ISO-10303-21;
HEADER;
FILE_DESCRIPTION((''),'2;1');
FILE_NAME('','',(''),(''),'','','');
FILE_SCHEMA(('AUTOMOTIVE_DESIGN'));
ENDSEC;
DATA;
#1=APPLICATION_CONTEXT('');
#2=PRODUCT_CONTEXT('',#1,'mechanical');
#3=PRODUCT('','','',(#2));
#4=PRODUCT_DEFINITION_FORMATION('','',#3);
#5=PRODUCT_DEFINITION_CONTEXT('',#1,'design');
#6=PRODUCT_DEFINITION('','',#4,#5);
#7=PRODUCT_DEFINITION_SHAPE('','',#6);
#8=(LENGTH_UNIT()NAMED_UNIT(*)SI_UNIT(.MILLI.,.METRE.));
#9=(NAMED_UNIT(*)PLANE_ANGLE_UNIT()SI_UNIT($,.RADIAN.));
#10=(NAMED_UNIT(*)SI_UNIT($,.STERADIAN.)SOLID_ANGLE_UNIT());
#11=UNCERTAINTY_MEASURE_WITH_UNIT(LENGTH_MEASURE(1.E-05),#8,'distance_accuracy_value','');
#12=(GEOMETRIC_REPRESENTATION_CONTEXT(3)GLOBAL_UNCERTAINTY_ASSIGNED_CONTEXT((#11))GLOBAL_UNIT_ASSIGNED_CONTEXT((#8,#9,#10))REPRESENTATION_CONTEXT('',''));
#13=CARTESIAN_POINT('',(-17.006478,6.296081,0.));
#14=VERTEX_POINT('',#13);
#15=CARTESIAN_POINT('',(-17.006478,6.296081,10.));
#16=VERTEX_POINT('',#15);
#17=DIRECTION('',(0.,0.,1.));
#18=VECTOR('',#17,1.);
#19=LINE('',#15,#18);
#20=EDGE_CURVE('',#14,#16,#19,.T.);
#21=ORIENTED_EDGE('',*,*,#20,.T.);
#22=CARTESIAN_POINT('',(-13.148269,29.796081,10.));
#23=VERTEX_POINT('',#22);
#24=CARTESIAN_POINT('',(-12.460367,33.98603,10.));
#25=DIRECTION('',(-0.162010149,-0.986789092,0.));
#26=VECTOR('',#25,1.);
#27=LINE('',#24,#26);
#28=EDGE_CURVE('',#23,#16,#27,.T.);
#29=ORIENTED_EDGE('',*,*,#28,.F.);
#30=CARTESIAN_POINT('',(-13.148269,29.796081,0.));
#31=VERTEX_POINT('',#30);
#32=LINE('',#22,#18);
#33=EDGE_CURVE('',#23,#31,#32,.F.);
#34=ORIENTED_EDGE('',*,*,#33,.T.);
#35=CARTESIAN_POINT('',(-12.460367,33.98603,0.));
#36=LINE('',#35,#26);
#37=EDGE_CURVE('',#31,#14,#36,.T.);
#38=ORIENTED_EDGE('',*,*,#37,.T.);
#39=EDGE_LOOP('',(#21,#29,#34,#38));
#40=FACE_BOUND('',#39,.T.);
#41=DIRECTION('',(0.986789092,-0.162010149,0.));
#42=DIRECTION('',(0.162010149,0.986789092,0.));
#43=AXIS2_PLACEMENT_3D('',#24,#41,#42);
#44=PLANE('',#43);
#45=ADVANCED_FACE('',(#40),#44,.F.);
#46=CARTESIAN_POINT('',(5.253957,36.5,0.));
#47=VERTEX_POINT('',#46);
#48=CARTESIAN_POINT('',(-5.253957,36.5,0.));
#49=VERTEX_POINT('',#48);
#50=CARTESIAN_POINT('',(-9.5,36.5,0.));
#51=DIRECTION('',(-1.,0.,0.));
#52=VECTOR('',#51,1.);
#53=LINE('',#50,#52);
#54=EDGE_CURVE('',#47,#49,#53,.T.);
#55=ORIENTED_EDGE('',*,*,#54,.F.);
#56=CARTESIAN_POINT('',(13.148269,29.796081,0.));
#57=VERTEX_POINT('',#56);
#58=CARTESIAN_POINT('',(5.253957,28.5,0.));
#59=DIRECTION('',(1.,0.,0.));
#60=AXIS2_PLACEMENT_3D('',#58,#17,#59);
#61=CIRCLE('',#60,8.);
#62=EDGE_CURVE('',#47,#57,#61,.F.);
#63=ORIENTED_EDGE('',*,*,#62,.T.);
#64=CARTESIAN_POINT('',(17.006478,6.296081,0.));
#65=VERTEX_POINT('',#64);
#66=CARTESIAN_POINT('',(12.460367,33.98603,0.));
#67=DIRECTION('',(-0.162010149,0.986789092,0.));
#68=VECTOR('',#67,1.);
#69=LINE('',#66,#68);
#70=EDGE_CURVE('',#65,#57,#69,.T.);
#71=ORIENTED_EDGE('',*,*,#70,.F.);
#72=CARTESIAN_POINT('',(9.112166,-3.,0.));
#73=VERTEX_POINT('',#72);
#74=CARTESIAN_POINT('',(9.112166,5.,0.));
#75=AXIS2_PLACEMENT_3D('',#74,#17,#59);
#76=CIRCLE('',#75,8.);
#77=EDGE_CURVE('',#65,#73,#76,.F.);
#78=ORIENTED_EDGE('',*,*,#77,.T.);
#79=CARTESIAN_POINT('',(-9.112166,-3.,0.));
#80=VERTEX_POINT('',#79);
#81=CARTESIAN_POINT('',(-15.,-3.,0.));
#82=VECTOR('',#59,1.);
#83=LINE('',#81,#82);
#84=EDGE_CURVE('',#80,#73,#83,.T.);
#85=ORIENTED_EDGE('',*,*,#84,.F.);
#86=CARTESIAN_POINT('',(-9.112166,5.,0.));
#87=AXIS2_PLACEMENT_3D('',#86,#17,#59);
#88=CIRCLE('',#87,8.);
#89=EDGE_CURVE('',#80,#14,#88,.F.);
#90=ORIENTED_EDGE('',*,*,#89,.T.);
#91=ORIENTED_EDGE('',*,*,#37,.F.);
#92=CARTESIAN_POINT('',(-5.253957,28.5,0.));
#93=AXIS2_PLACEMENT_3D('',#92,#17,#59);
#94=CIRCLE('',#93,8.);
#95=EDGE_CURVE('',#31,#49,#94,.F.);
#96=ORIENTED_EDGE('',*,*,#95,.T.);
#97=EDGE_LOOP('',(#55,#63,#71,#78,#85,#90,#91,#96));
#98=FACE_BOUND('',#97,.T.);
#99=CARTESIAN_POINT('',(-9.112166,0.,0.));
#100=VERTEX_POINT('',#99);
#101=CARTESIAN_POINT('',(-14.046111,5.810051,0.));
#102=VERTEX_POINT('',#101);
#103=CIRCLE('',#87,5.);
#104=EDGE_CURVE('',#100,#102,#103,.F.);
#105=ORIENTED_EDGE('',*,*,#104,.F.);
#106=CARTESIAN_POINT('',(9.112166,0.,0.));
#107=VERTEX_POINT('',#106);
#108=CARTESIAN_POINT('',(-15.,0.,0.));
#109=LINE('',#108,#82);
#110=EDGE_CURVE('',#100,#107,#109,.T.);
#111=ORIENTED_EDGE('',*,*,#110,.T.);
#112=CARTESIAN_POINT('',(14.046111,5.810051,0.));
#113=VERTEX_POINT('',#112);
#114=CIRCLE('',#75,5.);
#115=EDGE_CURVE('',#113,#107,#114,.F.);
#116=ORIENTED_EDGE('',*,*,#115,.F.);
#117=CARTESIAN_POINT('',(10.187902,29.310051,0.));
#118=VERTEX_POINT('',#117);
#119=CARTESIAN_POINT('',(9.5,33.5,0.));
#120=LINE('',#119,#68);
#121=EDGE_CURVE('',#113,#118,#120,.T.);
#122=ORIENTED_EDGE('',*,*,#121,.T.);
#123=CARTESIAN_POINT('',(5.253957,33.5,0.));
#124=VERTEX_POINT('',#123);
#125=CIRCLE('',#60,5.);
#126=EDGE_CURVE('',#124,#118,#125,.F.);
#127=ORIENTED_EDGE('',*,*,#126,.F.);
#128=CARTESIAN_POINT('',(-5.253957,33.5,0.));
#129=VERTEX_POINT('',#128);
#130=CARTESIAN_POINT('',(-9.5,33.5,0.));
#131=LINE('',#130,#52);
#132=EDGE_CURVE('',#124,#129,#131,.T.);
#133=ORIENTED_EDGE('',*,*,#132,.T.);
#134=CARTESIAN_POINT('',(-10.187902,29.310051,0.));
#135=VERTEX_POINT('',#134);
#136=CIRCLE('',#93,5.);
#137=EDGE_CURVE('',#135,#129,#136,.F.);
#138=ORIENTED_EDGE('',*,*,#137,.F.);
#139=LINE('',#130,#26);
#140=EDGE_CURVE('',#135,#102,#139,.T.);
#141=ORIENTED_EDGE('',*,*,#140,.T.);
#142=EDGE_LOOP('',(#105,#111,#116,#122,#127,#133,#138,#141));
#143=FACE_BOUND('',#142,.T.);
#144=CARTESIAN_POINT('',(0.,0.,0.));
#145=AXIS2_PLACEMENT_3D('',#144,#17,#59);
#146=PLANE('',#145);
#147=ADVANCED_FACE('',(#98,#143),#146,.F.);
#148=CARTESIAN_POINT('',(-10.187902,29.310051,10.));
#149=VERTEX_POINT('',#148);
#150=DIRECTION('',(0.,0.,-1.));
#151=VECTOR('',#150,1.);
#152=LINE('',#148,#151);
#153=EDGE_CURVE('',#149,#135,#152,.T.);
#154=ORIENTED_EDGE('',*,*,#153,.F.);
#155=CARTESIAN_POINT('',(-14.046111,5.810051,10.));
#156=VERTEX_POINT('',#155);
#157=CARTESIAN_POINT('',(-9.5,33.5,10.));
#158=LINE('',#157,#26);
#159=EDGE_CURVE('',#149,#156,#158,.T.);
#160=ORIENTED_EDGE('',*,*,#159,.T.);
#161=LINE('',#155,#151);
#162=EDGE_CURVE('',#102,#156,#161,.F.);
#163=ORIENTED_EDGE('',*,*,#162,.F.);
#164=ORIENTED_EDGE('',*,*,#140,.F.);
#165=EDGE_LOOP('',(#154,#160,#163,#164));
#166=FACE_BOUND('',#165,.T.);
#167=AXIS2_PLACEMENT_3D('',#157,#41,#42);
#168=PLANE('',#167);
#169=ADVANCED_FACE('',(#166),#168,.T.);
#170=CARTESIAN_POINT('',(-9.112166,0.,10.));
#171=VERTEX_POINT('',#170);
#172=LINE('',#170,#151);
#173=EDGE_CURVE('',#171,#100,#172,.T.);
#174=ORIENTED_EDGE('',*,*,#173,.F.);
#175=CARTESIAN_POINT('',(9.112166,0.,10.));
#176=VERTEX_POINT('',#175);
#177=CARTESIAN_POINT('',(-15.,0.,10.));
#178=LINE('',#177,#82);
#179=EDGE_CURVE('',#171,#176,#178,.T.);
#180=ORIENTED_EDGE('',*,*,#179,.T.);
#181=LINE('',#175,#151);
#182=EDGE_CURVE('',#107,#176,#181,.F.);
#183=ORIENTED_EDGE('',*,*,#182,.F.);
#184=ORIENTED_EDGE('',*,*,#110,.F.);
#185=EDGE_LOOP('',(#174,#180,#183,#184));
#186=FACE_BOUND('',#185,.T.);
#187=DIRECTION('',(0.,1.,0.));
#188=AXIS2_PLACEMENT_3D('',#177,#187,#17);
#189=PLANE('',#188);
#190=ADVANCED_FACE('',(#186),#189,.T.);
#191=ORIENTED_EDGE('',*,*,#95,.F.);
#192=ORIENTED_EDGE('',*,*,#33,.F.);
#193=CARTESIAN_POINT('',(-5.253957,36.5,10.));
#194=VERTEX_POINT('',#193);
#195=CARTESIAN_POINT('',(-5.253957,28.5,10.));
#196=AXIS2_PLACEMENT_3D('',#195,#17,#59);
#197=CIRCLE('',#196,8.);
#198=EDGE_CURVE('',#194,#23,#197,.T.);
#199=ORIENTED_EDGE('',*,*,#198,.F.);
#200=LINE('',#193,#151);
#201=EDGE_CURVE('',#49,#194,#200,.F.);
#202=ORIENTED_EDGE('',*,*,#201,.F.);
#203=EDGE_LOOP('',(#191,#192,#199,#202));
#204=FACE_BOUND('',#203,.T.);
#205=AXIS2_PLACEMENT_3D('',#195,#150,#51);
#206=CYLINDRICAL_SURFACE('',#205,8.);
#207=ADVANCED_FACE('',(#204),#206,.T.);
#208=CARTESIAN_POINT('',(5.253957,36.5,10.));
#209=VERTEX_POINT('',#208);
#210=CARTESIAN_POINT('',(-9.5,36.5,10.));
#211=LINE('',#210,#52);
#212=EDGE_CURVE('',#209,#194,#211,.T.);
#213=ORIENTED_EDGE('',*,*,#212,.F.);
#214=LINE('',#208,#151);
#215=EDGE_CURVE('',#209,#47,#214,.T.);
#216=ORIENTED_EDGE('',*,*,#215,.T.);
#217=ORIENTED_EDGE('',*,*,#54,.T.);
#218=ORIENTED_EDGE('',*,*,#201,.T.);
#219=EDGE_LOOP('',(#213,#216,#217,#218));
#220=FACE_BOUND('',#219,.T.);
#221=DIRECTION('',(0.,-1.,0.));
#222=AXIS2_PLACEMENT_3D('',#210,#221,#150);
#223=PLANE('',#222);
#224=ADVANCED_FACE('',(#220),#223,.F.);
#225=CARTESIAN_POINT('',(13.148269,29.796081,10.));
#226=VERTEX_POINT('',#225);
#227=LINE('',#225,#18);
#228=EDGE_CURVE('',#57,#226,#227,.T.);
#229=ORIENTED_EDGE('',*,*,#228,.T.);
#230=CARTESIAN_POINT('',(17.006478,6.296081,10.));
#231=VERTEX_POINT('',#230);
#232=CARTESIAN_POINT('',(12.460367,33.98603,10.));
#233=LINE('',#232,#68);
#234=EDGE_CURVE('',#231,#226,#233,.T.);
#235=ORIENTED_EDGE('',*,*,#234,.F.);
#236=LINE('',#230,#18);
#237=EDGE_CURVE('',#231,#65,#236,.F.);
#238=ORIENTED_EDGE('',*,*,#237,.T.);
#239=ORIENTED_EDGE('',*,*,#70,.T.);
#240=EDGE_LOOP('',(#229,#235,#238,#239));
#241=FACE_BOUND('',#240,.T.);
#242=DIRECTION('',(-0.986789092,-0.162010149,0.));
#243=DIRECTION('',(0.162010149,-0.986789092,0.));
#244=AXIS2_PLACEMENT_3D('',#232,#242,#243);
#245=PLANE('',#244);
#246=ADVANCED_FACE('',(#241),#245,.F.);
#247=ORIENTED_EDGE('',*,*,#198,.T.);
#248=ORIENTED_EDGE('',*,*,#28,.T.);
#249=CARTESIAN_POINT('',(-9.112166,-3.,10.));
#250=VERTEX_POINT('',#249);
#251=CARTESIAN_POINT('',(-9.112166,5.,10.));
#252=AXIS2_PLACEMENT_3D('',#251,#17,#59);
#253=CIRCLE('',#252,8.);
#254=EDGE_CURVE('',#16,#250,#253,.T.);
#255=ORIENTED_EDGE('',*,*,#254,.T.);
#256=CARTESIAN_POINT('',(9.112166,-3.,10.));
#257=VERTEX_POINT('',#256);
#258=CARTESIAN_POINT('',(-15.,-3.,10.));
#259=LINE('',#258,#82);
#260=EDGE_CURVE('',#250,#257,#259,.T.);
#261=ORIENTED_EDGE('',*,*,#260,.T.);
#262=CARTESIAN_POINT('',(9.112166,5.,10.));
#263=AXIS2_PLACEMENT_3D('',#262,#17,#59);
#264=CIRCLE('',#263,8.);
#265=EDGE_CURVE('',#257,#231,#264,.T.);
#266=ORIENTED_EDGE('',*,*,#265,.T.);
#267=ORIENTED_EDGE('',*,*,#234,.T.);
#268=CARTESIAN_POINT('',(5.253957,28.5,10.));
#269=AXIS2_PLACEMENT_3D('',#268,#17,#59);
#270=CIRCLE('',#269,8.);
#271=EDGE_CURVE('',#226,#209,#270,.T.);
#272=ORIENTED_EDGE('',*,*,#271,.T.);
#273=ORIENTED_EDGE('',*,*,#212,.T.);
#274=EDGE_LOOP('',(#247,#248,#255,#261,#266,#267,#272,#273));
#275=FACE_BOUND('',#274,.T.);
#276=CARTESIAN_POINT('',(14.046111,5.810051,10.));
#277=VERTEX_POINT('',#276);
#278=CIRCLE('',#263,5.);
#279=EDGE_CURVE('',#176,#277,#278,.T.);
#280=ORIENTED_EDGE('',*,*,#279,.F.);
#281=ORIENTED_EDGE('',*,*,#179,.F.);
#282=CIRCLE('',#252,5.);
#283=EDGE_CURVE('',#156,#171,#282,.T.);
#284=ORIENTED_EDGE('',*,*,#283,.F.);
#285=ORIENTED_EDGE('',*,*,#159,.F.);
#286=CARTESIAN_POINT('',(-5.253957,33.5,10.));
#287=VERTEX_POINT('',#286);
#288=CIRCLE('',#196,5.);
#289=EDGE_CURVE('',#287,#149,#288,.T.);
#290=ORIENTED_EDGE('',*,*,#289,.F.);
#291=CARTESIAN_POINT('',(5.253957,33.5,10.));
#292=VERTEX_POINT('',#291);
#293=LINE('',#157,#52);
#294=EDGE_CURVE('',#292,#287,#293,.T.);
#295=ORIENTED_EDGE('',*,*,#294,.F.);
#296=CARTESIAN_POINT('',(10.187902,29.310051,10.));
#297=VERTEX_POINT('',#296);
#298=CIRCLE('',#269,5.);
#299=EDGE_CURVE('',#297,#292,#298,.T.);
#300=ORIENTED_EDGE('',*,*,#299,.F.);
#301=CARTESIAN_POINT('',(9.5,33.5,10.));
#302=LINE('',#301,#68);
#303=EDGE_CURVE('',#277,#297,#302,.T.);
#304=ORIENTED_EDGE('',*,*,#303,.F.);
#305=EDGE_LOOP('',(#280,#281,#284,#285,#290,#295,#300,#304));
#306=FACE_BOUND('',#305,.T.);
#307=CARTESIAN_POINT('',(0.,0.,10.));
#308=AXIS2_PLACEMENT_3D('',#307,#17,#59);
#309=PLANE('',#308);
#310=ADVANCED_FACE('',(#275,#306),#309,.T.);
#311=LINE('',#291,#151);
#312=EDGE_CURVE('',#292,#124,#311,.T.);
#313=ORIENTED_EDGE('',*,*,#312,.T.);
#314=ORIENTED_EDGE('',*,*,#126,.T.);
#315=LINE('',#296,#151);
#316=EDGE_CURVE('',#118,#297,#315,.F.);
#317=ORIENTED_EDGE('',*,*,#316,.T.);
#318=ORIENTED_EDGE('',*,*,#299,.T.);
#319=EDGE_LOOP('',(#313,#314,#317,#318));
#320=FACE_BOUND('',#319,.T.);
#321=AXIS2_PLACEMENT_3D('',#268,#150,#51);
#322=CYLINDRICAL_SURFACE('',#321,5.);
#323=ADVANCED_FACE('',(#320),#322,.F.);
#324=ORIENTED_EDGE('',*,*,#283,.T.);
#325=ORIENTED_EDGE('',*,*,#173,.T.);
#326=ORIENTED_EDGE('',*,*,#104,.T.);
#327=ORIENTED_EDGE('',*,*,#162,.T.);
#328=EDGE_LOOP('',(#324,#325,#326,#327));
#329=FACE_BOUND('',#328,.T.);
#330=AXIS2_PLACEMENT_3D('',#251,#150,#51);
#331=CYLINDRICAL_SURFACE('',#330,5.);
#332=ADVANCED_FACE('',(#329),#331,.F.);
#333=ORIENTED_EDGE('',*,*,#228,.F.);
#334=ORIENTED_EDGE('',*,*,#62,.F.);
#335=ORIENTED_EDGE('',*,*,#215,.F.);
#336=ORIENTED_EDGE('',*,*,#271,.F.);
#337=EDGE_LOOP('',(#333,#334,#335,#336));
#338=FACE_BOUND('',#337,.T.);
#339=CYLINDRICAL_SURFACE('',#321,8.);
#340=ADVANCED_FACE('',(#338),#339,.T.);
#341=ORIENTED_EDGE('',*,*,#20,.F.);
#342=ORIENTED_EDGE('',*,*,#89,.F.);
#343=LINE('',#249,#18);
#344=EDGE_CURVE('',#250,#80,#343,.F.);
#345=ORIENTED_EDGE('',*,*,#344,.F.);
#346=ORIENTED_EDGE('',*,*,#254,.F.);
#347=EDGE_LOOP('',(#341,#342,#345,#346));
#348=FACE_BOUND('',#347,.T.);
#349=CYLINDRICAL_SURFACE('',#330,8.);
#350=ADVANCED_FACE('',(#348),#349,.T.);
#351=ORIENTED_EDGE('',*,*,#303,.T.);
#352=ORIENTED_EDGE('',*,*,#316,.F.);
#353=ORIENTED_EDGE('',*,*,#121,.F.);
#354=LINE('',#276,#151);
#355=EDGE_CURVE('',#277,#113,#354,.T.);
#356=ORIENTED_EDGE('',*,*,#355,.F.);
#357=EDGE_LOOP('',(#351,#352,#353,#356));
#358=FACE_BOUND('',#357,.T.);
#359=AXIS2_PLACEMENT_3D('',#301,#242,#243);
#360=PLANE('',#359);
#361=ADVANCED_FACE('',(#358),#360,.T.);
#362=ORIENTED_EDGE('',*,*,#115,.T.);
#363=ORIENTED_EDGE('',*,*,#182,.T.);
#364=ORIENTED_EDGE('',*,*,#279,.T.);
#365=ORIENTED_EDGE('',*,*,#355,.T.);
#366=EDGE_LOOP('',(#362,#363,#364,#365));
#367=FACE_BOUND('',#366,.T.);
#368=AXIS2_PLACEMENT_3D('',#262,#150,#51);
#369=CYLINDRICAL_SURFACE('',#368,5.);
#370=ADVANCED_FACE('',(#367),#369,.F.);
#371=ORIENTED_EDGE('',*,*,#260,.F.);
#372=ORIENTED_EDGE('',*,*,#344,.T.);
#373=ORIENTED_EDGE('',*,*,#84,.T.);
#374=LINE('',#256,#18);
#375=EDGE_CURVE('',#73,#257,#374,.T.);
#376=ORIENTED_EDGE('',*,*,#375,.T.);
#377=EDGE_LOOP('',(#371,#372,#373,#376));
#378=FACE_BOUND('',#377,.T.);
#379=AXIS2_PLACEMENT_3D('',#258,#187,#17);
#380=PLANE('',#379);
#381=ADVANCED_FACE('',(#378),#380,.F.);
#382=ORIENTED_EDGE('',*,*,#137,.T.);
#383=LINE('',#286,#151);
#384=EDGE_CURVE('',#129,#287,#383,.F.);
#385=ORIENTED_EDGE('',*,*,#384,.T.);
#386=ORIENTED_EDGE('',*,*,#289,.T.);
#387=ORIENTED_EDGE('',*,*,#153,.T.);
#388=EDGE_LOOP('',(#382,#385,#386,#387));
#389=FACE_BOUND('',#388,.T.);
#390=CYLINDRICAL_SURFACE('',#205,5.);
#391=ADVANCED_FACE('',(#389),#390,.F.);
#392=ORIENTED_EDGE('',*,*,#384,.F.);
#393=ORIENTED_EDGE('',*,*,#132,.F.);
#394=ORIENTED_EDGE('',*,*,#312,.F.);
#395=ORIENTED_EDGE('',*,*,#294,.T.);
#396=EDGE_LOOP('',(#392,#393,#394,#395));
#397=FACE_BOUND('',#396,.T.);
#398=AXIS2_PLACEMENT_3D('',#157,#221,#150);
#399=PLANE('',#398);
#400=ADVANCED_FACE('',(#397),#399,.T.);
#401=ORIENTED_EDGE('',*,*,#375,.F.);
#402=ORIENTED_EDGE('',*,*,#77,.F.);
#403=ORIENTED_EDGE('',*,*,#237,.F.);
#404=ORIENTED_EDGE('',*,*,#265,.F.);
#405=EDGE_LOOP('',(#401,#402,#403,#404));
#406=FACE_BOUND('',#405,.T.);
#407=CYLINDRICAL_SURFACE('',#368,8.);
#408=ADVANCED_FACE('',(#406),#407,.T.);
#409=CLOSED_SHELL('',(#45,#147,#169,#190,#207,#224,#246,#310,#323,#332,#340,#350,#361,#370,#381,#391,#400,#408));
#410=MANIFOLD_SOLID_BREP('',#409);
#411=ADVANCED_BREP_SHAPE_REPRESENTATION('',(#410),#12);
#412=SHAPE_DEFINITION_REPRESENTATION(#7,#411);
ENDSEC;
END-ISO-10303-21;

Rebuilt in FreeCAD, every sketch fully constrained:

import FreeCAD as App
import Part
import Sketcher
from FreeCAD import Vector
Q = App.Units.Quantity


def edges_at(feature, points):
    """Names of the edges that pass closest to the given points."""
    edges = feature.Shape.Edges
    near = lambda p: min(range(len(edges)), key=lambda i: edges[i].distToShape(Part.Vertex(*p))[0])
    return sorted({f"Edge{near(p) + 1}" for p in points})


def faces_at(feature, points):
    """Names of the faces that lie closest to the given points."""
    faces = feature.Shape.Faces
    near = lambda p: min(range(len(faces)), key=lambda i: faces[i].distToShape(Part.Vertex(*p))[0])
    return sorted({f"Face{near(p) + 1}" for p in points})

doc = App.newDocument("Part")
body = doc.addObject("PartDesign::Body", "Body")

# Sketch on XY plane
sketch1 = doc.addObject("Sketcher::SketchObject", "Sketch")
body.addObject(sketch1)
sketch1.AttachmentSupport = (doc.XY_Plane, [""])
sketch1.MapMode = "FlatFace"
sketch1.addGeometry([
    Part.LineSegment(Vector(-15, 0, 0), Vector(15, 0, 0)),
    Part.LineSegment(Vector(15, 0, 0), Vector(10, 34, 0)),
    Part.LineSegment(Vector(10, 34, 0), Vector(-10, 34, 0)),
    Part.LineSegment(Vector(-10, 34, 0), Vector(-15, 0, 0)),
], False)
sketch1.addConstraint([
    Sketcher.Constraint("Coincident", 0, 2, 1, 1),
    Sketcher.Constraint("Coincident", 1, 2, 2, 1),
    Sketcher.Constraint("Coincident", 2, 2, 3, 1),
    Sketcher.Constraint("Coincident", 3, 2, 0, 1),
    Sketcher.Constraint("Horizontal", 0),
    Sketcher.Constraint("Horizontal", 2),
    Sketcher.Constraint("Symmetric", 0, 2, 3, 2, -1, 1),
    Sketcher.Constraint("Equal", 1, 3),
    Sketcher.Constraint("DistanceX", 0, 1, 0, 2, Q("30 mm")),
    Sketcher.Constraint("DistanceX", 2, 2, 2, 1, Q("19 mm")),
    Sketcher.Constraint("DistanceY", -1, 1, 1, 2, Q("33.5 mm")),
])
pad1 = doc.addObject("PartDesign::Pad", "Pad")
body.addObject(pad1)
pad1.Profile = sketch1
pad1.Length = 10
doc.recompute()

fillet = doc.addObject("PartDesign::Fillet", "Fillet")
body.addObject(fillet)
fillet.Base = (pad1, edges_at(pad1, [
    (15, 0, 5),
    (-15, 0, 5),
    (-9.5, 33.5, 5),
    (9.5, 33.5, 5),
]))
fillet.Radius = 5
doc.recompute()

thickness = doc.addObject("PartDesign::Thickness", "Thickness")
body.addObject(thickness)
thickness.Base = (fillet, faces_at(fillet, [(0, 16.75, 0), (0, 16.75, 10)]))
thickness.Value = 3
thickness.Reversed = False
thickness.Join = "Intersection"

doc.recompute()
